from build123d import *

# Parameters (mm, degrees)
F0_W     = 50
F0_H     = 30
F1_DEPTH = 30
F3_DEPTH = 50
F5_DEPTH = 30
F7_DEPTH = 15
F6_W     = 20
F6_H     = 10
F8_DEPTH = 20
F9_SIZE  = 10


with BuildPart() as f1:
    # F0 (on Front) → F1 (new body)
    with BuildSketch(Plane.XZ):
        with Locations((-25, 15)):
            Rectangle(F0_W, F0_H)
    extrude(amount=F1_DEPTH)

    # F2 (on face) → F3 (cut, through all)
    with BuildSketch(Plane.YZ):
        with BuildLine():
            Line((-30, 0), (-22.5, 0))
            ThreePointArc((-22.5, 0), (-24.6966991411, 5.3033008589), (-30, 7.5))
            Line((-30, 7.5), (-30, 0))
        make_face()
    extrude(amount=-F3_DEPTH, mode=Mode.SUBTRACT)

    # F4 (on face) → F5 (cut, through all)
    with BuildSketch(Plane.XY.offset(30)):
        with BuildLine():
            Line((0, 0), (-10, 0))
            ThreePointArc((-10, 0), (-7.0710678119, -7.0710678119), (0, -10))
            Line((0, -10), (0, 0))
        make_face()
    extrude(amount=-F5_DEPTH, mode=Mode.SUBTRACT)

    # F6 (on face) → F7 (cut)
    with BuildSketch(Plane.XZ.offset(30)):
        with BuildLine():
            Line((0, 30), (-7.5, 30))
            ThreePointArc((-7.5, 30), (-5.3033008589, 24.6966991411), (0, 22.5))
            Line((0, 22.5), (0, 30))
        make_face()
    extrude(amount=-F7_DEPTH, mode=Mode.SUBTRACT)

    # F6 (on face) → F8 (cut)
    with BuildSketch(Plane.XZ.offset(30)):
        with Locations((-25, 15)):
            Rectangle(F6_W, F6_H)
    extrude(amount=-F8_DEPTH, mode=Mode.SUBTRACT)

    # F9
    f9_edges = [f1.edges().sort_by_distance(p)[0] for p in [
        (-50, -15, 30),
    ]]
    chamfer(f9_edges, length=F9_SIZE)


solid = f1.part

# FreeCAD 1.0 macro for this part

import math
import FreeCAD as App
import Part
import Sketcher

V = App.Vector
Q = App.Units.Quantity


def edges_at(feature, points):
    """Names of the edges that pass closest to the given points."""
    edges = feature.Shape.Edges
    near = lambda p: min(range(len(edges)), key=lambda i: edges[i].distToShape(Part.Vertex(*p))[0])
    return sorted({f"Edge{near(p) + 1}" for p in points})

doc = App.newDocument("Part")
body = doc.addObject("PartDesign::Body", "Body")

sketch1 = body.newObject("Sketcher::SketchObject", "Sketch")
sketch1.AttachmentSupport = (doc.getObject("XZ_Plane"), [""])
sketch1.MapMode = "FlatFace"
sketch1.addGeometry(Part.LineSegment(V(-50, 30, 0), V(-50, 0, 0)), False)
sketch1.addGeometry(Part.LineSegment(V(-50, 0, 0), V(0, 0, 0)), False)
sketch1.addGeometry(Part.LineSegment(V(0, 0, 0), V(0, 30, 0)), False)
sketch1.addGeometry(Part.LineSegment(V(0, 30, 0), V(-50, 30, 0)), False)
sketch1.addConstraint(Sketcher.Constraint("Coincident", 0, 2, 1, 1))
sketch1.addConstraint(Sketcher.Constraint("Coincident", 1, 2, 2, 1))
sketch1.addConstraint(Sketcher.Constraint("Coincident", 2, 2, 3, 1))
sketch1.addConstraint(Sketcher.Constraint("Coincident", 3, 2, 0, 1))
sketch1.addConstraint(Sketcher.Constraint("Vertical", 0))
sketch1.addConstraint(Sketcher.Constraint("Horizontal", 1))
sketch1.addConstraint(Sketcher.Constraint("Vertical", 2))
sketch1.addConstraint(Sketcher.Constraint("Horizontal", 3))
sketch1.addConstraint(Sketcher.Constraint("Coincident", 1, 2, -1, 1))
sketch1.addConstraint(Sketcher.Constraint("DistanceX", 1, 1, 1, 2, Q("50 mm")))
sketch1.addConstraint(Sketcher.Constraint("DistanceY", 0, 2, 0, 1, Q("30 mm")))
pad1 = body.newObject("PartDesign::Pad", "Pad")
pad1.Profile = sketch1
pad1.Length = 30

sketch2 = body.newObject("Sketcher::SketchObject", "Sketch001")
sketch2.AttachmentSupport = (doc.getObject("YZ_Plane"), [""])
sketch2.MapMode = "FlatFace"
sketch2.addGeometry(Part.LineSegment(V(-30, 0, 0), V(-22.5, 0, 0)), False)
sketch2.addGeometry(Part.ArcOfCircle(Part.Circle(V(-30, 0, 0), V(0, 0, 1), 7.5), math.radians(0), math.radians(90)), False)
sketch2.addGeometry(Part.LineSegment(V(-30, 7.5, 0), V(-30, 0, 0)), False)
sketch2.addConstraint(Sketcher.Constraint("Coincident", 0, 2, 1, 1))
sketch2.addConstraint(Sketcher.Constraint("Coincident", 1, 2, 2, 1))
sketch2.addConstraint(Sketcher.Constraint("Coincident", 2, 2, 0, 1))
sketch2.addConstraint(Sketcher.Constraint("Horizontal", 0))
sketch2.addConstraint(Sketcher.Constraint("Vertical", 2))
sketch2.addConstraint(Sketcher.Constraint("Coincident", 2, 2, 1, 3))
sketch2.addConstraint(Sketcher.Constraint("PointOnObject", 1, 3, -1))
sketch2.addConstraint(Sketcher.Constraint("Radius", 1, Q("7.5 mm")))
sketch2.addConstraint(Sketcher.Constraint("DistanceX", 1, 3, -1, 1, Q("30 mm")))
pocket1 = body.newObject("PartDesign::Pocket", "Pocket")
pocket1.Profile = sketch2
pocket1.Type = "ThroughAll"

sketch3 = body.newObject("Sketcher::SketchObject", "Sketch002")
sketch3.AttachmentSupport = (doc.getObject("XY_Plane"), [""])
sketch3.MapMode = "FlatFace"
sketch3.AttachmentOffset = App.Placement(V(0, 0, 30), App.Rotation())
sketch3.addGeometry(Part.LineSegment(V(0, 0, 0), V(-10, 0, 0)), False)
sketch3.addGeometry(Part.ArcOfCircle(Part.Circle(V(0, 0, 0), V(0, 0, 1), 10), math.radians(180), math.radians(270)), False)
sketch3.addGeometry(Part.LineSegment(V(0, -10, 0), V(0, 0, 0)), False)
sketch3.addConstraint(Sketcher.Constraint("Coincident", 0, 2, 1, 1))
sketch3.addConstraint(Sketcher.Constraint("Coincident", 1, 2, 2, 1))
sketch3.addConstraint(Sketcher.Constraint("Coincident", 2, 2, 0, 1))
sketch3.addConstraint(Sketcher.Constraint("Horizontal", 0))
sketch3.addConstraint(Sketcher.Constraint("Vertical", 2))
sketch3.addConstraint(Sketcher.Constraint("Coincident", 1, 3, -1, 1))
sketch3.addConstraint(Sketcher.Constraint("Coincident", 2, 2, -1, 1))
sketch3.addConstraint(Sketcher.Constraint("Radius", 1, Q("10 mm")))
pocket2 = body.newObject("PartDesign::Pocket", "Pocket001")
pocket2.Profile = sketch3
pocket2.Type = "ThroughAll"

sketch4 = body.newObject("Sketcher::SketchObject", "Sketch003")
sketch4.AttachmentSupport = (doc.getObject("XZ_Plane"), [""])
sketch4.MapMode = "FlatFace"
sketch4.AttachmentOffset = App.Placement(V(0, 0, 30), App.Rotation())
sketch4.addGeometry(Part.LineSegment(V(0, 30, 0), V(-7.5, 30, 0)), False)
sketch4.addGeometry(Part.ArcOfCircle(Part.Circle(V(0, 30, 0), V(0, 0, 1), 7.5), math.radians(180), math.radians(270)), False)
sketch4.addGeometry(Part.LineSegment(V(0, 22.5, 0), V(0, 30, 0)), False)
sketch4.addConstraint(Sketcher.Constraint("Coincident", 0, 2, 1, 1))
sketch4.addConstraint(Sketcher.Constraint("Coincident", 1, 2, 2, 1))
sketch4.addConstraint(Sketcher.Constraint("Coincident", 2, 2, 0, 1))
sketch4.addConstraint(Sketcher.Constraint("Horizontal", 0))
sketch4.addConstraint(Sketcher.Constraint("Vertical", 2))
sketch4.addConstraint(Sketcher.Constraint("Coincident", 2, 2, 1, 3))
sketch4.addConstraint(Sketcher.Constraint("PointOnObject", 1, 3, -2))
sketch4.addConstraint(Sketcher.Constraint("Radius", 1, Q("7.5 mm")))
sketch4.addConstraint(Sketcher.Constraint("DistanceY", -1, 1, 1, 3, Q("30 mm")))
pocket3 = body.newObject("PartDesign::Pocket", "Pocket002")
pocket3.Profile = sketch4
pocket3.Length = 15

sketch5 = body.newObject("Sketcher::SketchObject", "Sketch004")
sketch5.AttachmentSupport = (doc.getObject("XZ_Plane"), [""])
sketch5.MapMode = "FlatFace"
sketch5.AttachmentOffset = App.Placement(V(0, 0, 30), App.Rotation())
sketch5.addGeometry(Part.LineSegment(V(-35, 20, 0), V(-35, 10, 0)), False)
sketch5.addGeometry(Part.LineSegment(V(-35, 10, 0), V(-15, 10, 0)), False)
sketch5.addGeometry(Part.LineSegment(V(-15, 10, 0), V(-15, 20, 0)), False)
sketch5.addGeometry(Part.LineSegment(V(-15, 20, 0), V(-35, 20, 0)), False)
sketch5.addConstraint(Sketcher.Constraint("Coincident", 0, 2, 1, 1))
sketch5.addConstraint(Sketcher.Constraint("Coincident", 1, 2, 2, 1))
sketch5.addConstraint(Sketcher.Constraint("Coincident", 2, 2, 3, 1))
sketch5.addConstraint(Sketcher.Constraint("Coincident", 3, 2, 0, 1))
sketch5.addConstraint(Sketcher.Constraint("Vertical", 0))
sketch5.addConstraint(Sketcher.Constraint("Horizontal", 1))
sketch5.addConstraint(Sketcher.Constraint("Vertical", 2))
sketch5.addConstraint(Sketcher.Constraint("Horizontal", 3))
sketch5.addConstraint(Sketcher.Constraint("DistanceX", 1, 1, 1, 2, Q("20 mm")))
sketch5.addConstraint(Sketcher.Constraint("DistanceY", 0, 2, 0, 1, Q("10 mm")))
sketch5.addConstraint(Sketcher.Constraint("DistanceX", 0, 2, -1, 1, Q("35 mm")))
sketch5.addConstraint(Sketcher.Constraint("DistanceY", -1, 1, 0, 2, Q("10 mm")))
pocket4 = body.newObject("PartDesign::Pocket", "Pocket003")
pocket4.Profile = sketch5
pocket4.Length = 20
doc.recompute()

chamfer = body.newObject("PartDesign::Chamfer", "Chamfer")
chamfer.Base = (pocket4, edges_at(pocket4, [(-50, -15, 30)]))
chamfer.Size = 10

doc.recompute()
